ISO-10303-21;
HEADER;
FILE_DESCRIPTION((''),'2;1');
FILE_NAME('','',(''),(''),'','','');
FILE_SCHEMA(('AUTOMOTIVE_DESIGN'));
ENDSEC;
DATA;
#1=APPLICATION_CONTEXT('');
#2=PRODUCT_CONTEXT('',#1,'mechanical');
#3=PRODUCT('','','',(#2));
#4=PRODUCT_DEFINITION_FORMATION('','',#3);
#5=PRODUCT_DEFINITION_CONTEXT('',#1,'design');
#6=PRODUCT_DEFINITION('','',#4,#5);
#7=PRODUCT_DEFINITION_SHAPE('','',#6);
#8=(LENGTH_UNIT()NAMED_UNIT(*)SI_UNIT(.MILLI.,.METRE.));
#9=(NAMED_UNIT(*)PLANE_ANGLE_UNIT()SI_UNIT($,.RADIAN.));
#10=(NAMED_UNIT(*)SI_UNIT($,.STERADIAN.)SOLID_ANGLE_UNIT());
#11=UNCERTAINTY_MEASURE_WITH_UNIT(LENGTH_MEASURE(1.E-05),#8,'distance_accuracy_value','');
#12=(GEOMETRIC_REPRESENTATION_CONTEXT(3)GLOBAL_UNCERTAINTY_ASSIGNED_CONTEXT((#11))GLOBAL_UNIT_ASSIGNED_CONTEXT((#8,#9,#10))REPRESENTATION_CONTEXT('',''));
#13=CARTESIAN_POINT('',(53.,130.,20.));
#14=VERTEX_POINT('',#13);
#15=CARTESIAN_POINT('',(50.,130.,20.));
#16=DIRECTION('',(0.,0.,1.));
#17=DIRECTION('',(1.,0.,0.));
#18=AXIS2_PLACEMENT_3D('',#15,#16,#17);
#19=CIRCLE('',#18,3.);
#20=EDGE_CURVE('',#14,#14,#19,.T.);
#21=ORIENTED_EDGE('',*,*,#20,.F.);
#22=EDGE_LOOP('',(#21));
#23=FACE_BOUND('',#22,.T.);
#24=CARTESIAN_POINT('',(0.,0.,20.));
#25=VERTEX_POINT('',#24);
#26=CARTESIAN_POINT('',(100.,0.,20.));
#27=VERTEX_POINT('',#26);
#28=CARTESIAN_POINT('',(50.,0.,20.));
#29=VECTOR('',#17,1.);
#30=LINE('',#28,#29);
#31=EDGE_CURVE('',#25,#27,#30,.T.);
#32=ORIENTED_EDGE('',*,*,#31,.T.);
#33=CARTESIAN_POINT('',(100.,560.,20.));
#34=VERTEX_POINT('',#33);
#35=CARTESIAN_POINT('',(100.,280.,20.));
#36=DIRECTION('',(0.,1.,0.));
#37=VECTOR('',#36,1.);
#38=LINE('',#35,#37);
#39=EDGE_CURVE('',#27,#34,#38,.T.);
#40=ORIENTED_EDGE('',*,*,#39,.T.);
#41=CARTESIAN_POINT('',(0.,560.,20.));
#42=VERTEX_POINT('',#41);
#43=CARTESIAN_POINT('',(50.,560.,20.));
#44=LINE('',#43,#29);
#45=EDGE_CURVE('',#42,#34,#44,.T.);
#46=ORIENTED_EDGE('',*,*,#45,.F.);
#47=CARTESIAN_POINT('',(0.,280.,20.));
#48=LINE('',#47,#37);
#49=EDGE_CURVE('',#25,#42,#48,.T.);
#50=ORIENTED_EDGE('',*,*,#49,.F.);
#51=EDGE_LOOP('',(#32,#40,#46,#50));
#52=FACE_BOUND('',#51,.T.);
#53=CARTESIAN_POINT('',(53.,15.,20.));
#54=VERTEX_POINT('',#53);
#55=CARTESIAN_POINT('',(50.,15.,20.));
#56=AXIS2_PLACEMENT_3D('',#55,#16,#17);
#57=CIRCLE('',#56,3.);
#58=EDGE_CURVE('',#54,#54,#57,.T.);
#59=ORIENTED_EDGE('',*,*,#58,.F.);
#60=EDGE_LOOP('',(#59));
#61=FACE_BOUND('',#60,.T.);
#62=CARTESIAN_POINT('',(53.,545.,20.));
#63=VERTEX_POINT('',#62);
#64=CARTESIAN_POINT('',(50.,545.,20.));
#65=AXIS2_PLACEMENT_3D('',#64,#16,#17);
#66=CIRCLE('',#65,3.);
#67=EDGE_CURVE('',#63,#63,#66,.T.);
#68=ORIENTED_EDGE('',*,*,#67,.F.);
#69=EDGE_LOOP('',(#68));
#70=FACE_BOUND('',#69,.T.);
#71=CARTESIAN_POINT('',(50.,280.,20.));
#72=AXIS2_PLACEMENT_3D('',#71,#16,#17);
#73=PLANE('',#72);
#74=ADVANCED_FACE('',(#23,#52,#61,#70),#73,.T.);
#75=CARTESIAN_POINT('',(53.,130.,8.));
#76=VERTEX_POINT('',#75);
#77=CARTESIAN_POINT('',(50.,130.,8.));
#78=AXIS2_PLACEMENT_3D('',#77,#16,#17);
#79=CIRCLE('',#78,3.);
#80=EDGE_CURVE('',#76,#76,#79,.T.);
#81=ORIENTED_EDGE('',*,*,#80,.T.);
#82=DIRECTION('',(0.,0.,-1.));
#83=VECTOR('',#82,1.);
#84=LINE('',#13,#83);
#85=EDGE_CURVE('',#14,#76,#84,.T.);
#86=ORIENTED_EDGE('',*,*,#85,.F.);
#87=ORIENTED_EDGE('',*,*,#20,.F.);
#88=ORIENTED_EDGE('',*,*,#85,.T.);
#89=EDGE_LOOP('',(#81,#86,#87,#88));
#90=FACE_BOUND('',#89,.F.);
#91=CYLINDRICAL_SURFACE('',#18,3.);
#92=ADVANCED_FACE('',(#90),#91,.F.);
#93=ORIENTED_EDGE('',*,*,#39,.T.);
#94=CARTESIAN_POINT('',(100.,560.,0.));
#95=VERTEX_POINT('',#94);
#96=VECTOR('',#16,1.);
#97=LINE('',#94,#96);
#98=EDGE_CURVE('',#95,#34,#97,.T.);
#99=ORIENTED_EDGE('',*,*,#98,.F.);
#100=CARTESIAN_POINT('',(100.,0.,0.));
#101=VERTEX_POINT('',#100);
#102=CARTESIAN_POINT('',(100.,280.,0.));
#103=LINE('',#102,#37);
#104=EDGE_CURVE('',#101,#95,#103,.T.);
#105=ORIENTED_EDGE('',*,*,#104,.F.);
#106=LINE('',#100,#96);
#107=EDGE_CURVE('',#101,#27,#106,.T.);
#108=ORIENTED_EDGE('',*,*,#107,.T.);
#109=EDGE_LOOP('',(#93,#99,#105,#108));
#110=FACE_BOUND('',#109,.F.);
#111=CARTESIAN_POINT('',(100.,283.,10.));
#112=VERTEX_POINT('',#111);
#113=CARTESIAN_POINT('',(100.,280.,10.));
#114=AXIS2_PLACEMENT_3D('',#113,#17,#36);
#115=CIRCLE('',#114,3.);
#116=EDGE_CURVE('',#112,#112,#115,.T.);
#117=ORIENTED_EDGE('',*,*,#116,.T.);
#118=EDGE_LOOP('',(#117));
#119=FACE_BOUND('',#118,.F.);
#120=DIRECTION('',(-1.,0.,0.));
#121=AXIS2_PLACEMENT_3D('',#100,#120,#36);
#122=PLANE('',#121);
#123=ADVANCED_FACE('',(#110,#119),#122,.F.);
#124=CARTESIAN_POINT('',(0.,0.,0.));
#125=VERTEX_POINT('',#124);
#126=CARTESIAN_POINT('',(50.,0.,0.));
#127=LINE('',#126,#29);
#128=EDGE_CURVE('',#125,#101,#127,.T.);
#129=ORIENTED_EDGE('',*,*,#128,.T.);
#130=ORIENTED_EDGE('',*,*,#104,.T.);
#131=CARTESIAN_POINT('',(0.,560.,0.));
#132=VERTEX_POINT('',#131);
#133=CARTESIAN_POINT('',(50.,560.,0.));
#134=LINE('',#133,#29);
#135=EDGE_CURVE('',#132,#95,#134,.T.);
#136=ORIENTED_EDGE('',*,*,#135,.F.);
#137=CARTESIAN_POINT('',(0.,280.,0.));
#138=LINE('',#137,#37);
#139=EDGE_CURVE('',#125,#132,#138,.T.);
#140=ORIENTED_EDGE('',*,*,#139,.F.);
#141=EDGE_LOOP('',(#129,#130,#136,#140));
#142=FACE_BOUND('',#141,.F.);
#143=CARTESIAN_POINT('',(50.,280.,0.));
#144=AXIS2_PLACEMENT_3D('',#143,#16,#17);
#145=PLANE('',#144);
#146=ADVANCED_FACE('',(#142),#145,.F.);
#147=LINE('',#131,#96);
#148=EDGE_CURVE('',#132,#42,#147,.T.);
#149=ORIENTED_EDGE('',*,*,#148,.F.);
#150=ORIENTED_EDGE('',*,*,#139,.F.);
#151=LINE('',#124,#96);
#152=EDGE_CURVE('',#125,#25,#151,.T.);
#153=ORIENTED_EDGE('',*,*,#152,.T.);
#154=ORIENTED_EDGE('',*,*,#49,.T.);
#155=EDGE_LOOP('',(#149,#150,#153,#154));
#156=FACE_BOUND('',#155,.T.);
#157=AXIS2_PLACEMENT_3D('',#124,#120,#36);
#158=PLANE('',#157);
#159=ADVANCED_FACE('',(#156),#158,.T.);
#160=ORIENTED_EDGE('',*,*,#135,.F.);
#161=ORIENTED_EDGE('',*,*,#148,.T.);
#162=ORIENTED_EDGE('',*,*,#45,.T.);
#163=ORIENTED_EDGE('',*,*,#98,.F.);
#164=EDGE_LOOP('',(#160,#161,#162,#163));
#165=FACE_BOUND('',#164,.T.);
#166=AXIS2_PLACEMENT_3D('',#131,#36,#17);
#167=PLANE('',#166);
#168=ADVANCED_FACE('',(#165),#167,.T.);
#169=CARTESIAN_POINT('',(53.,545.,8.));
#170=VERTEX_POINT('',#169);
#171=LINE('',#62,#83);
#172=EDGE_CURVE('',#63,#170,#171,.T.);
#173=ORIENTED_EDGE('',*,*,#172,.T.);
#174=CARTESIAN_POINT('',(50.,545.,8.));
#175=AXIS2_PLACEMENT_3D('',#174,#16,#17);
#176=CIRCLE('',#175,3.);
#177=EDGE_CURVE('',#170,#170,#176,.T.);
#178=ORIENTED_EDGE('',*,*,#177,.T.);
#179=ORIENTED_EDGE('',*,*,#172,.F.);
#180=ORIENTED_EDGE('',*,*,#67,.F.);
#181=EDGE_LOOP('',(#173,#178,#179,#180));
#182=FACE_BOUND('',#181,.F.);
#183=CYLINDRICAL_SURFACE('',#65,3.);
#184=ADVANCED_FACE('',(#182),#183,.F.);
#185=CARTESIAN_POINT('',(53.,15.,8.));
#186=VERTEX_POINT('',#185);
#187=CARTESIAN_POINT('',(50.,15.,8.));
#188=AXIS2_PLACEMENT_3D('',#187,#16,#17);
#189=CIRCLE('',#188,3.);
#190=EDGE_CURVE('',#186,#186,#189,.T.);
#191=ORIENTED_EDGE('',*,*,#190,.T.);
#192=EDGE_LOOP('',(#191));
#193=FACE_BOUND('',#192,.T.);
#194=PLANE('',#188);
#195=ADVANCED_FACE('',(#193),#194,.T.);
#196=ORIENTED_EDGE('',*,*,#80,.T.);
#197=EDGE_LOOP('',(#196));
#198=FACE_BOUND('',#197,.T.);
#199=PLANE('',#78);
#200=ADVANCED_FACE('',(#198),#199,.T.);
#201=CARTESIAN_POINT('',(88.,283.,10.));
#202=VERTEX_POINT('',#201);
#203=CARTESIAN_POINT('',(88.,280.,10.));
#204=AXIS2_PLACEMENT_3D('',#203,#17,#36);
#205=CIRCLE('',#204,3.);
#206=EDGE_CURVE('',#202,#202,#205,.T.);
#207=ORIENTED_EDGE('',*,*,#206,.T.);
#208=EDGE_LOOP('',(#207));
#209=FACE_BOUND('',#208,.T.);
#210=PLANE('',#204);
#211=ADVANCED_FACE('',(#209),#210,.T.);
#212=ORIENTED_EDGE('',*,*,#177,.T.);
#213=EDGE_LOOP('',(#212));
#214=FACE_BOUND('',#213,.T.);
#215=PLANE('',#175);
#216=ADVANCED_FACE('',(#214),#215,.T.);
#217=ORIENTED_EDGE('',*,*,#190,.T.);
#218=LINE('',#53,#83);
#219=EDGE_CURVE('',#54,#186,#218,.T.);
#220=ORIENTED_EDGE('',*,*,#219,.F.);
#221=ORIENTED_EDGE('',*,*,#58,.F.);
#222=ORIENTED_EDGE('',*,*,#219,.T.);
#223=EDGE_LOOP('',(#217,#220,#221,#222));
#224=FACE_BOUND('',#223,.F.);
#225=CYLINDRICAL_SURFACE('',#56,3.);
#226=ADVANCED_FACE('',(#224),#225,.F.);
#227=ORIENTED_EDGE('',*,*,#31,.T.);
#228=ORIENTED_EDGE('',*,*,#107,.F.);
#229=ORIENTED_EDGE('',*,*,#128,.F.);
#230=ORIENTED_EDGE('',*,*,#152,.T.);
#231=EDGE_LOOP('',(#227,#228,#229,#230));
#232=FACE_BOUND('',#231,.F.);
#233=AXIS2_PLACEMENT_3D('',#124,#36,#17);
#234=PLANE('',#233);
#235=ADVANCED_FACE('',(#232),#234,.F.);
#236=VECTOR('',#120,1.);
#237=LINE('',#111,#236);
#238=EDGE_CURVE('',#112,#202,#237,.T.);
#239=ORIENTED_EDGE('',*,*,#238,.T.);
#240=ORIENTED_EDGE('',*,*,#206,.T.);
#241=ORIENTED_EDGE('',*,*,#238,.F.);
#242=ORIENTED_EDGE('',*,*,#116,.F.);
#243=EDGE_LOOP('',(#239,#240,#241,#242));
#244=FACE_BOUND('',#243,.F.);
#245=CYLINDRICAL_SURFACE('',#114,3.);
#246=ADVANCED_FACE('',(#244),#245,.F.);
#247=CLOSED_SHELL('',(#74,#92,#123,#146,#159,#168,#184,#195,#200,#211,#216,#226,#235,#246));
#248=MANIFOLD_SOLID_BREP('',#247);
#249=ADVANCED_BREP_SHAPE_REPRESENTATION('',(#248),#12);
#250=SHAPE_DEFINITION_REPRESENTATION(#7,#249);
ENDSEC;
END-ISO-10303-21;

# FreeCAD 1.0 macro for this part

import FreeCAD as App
import Part
import Sketcher


def add_polygon(sketch, points):
    """Adds a closed chain of lines whose ends are joined by coincident constraints."""
    first, n = sketch.GeometryCount, len(points)
    for a, b in zip(points, points[1:] + points[:1]):
        sketch.addGeometry(Part.LineSegment(App.Vector(*a, 0), App.Vector(*b, 0)), False)
    for i in range(n):
        sketch.addConstraint(Sketcher.Constraint("Coincident", first + i, 2, first + (i + 1) % n, 1))

doc = App.newDocument("Part")
params = doc.addObject("Spreadsheet::Sheet", "Params")
for row, (alias, value) in enumerate([
    ("sketch1_width", "100 mm"),
    ("sketch1_height", "560 mm"),
    ("pad1_length", "20 mm"),
    ("sketch2_diameter", "6 mm"),
    ("pocket1_length", "12 mm"),
    ("sketch3_diameter", "6 mm"),
    ("pocket2_length", "12 mm"),
    ("sketch4_diameter", "6 mm"),
    ("pocket3_length", "12 mm"),
    ("sketch5_diameter", "6 mm"),
    ("pocket4_length", "12 mm"),
], start=1):
    params.set(f"A{row}", alias)
    params.set(f"B{row}", "=" + value)
    params.setAlias(f"B{row}", alias)

body = doc.addObject("PartDesign::Body", "Body")

# Sketch on XY plane
sketch1 = body.newObject("Sketcher::SketchObject", "Sketch")
sketch1.AttachmentSupport = (doc.getObject("XY_Plane"), [""])
sketch1.MapMode = "FlatFace"
add_polygon(sketch1, [(0, 560), (0, 0), (100, 0), (100, 560)])  # lines 0-3
sketch1.addConstraint([
    Sketcher.Constraint("Vertical", 0),
    Sketcher.Constraint("Horizontal", 1),
    Sketcher.Constraint("Vertical", 2),
    Sketcher.Constraint("Horizontal", 3),
    Sketcher.Constraint("Coincident", 0, 2, -1, 1),
    Sketcher.Constraint("DistanceX", 1, 1, 1, 2, 100.0),
    Sketcher.Constraint("DistanceY", 0, 2, 0, 1, 560.0),
])
sketch1.setExpression("Constraints[9]", "Params.sketch1_width")
sketch1.setExpression("Constraints[10]", "Params.sketch1_height")
pad1 = body.newObject("PartDesign::Pad", "Pad")
pad1.Profile = sketch1
pad1.setExpression("Length", "Params.pad1_length")

# Sketch on XY plane
sketch2 = body.newObject("Sketcher::SketchObject", "Sketch001")
sketch2.AttachmentSupport = (doc.getObject("XY_Plane"), [""])
sketch2.MapMode = "FlatFace"
sketch2.AttachmentOffset = App.Placement(App.Vector(0, 0, 20), App.Rotation())
sketch2.addGeometry(Part.Circle(App.Vector(50, 15, 0), App.Vector(0, 0, 1), 3), False)
sketch2.addConstraint([
    Sketcher.Constraint("Diameter", 0, 6.0),
    Sketcher.Constraint("DistanceX", -1, 1, 0, 3, 50.0),
    Sketcher.Constraint("DistanceY", -1, 1, 0, 3, 15.0),
])
sketch2.setExpression("Constraints[0]", "Params.sketch2_diameter")
pocket1 = body.newObject("PartDesign::Pocket", "Pocket")
pocket1.Profile = sketch2
pocket1.setExpression("Length", "Params.pocket1_length")

# Sketch on XY plane
sketch3 = body.newObject("Sketcher::SketchObject", "Sketch002")
sketch3.AttachmentSupport = (doc.getObject("XY_Plane"), [""])
sketch3.MapMode = "FlatFace"
sketch3.AttachmentOffset = App.Placement(App.Vector(0, 0, 20), App.Rotation())
sketch3.addGeometry(Part.Circle(App.Vector(50, 545, 0), App.Vector(0, 0, 1), 3), False)
sketch3.addConstraint([
    Sketcher.Constraint("Diameter", 0, 6.0),
    Sketcher.Constraint("DistanceX", -1, 1, 0, 3, 50.0),
    Sketcher.Constraint("DistanceY", -1, 1, 0, 3, 545.0),
])
sketch3.setExpression("Constraints[0]", "Params.sketch3_diameter")
pocket2 = body.newObject("PartDesign::Pocket", "Pocket001")
pocket2.Profile = sketch3
pocket2.setExpression("Length", "Params.pocket2_length")

# Sketch on XY plane
sketch4 = body.newObject("Sketcher::SketchObject", "Sketch003")
sketch4.AttachmentSupport = (doc.getObject("XY_Plane"), [""])
sketch4.MapMode = "FlatFace"
sketch4.AttachmentOffset = App.Placement(App.Vector(0, 0, 20), App.Rotation())
sketch4.addGeometry(Part.Circle(App.Vector(50, 130, 0), App.Vector(0, 0, 1), 3), False)
sketch4.addConstraint([
    Sketcher.Constraint("Diameter", 0, 6.0),
    Sketcher.Constraint("DistanceX", -1, 1, 0, 3, 50.0),
    Sketcher.Constraint("DistanceY", -1, 1, 0, 3, 130.0),
])
sketch4.setExpression("Constraints[0]", "Params.sketch4_diameter")
pocket3 = body.newObject("PartDesign::Pocket", "Pocket002")
pocket3.Profile = sketch4
pocket3.setExpression("Length", "Params.pocket3_length")

# Sketch on YZ plane
sketch5 = body.newObject("Sketcher::SketchObject", "Sketch004")
sketch5.AttachmentSupport = (doc.getObject("YZ_Plane"), [""])
sketch5.MapMode = "FlatFace"
sketch5.AttachmentOffset = App.Placement(App.Vector(0, 0, 100), App.Rotation())
sketch5.addGeometry(Part.Circle(App.Vector(280, 10, 0), App.Vector(0, 0, 1), 3), False)
sketch5.addConstraint([
    Sketcher.Constraint("Diameter", 0, 6.0),
    Sketcher.Constraint("DistanceX", -1, 1, 0, 3, 280.0),
    Sketcher.Constraint("DistanceY", -1, 1, 0, 3, 10.0),
])
sketch5.setExpression("Constraints[0]", "Params.sketch5_diameter")
pocket4 = body.newObject("PartDesign::Pocket", "Pocket003")
pocket4.Profile = sketch5
pocket4.setExpression("Length", "Params.pocket4_length")

doc.recompute()
